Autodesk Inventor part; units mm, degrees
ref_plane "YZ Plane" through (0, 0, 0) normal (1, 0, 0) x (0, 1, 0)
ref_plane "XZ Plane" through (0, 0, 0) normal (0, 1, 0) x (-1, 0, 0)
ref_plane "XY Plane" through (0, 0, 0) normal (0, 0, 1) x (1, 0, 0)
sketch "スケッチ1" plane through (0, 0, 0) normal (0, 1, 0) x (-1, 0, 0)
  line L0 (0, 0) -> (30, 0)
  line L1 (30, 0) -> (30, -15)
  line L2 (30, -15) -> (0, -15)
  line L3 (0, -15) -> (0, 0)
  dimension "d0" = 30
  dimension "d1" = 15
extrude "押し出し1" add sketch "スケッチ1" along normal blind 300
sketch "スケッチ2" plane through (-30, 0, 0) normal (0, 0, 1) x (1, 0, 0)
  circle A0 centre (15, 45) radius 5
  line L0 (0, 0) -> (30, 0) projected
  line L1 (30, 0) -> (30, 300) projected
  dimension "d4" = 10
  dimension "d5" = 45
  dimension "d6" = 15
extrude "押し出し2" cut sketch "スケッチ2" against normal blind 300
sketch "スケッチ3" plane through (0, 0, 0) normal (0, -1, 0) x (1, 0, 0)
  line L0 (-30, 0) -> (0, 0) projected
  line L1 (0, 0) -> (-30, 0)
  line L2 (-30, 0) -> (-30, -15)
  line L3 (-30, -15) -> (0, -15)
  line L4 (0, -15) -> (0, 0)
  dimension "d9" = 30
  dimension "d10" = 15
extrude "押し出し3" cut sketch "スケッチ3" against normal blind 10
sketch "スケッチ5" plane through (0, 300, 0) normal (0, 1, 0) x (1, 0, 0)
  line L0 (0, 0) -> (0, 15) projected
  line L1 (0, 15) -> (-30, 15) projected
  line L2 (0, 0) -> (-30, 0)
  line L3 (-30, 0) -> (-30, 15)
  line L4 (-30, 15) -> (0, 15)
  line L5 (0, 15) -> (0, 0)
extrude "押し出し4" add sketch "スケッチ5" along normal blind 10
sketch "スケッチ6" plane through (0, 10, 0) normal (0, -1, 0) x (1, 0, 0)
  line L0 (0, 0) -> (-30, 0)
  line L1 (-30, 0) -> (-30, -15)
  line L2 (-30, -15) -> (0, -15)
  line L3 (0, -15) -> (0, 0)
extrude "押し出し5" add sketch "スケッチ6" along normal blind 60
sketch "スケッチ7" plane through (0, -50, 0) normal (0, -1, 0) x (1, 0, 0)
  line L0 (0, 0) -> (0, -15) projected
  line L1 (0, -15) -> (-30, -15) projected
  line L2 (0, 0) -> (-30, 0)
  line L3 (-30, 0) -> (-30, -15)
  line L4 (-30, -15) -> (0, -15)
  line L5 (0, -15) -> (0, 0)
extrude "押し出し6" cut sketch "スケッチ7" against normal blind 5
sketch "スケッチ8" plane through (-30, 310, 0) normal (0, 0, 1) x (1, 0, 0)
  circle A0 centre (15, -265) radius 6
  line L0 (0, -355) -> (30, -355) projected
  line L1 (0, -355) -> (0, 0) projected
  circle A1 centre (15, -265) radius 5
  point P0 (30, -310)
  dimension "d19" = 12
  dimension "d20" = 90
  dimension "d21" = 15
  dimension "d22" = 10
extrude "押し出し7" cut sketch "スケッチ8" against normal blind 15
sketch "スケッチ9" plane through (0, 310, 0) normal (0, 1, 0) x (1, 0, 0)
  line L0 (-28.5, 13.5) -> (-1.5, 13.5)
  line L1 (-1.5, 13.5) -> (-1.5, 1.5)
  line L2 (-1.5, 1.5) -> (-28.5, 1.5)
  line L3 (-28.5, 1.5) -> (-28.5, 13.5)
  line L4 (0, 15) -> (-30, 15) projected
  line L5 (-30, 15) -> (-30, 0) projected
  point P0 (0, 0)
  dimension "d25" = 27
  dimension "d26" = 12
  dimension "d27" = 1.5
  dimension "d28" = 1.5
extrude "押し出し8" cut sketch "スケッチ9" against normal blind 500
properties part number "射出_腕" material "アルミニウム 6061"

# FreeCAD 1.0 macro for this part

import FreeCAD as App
import Part
import Sketcher


def add_polygon(sketch, points):
    """Adds a closed chain of lines whose ends are joined by coincident constraints."""
    first, n = sketch.GeometryCount, len(points)
    for a, b in zip(points, points[1:] + points[:1]):
        sketch.addGeometry(Part.LineSegment(App.Vector(*a, 0), App.Vector(*b, 0)), False)
    for i in range(n):
        sketch.addConstraint(Sketcher.Constraint("Coincident", first + i, 2, first + (i + 1) % n, 1))

doc = App.newDocument("Part")
body = doc.addObject("PartDesign::Body", "Body")

# Sketch on XZ plane
sketch1 = doc.addObject("Sketcher::SketchObject", "Sketch")
body.addObject(sketch1)
sketch1.AttachmentSupport = (doc.XZ_Plane, [""])
sketch1.MapMode = "FlatFace"
add_polygon(sketch1, [(-30, 0), (0, 0), (0, -15), (-30, -15)])  # lines 0-3
sketch1.addConstraint([
    Sketcher.Constraint("Horizontal", 0),
    Sketcher.Constraint("Vertical", 1),
    Sketcher.Constraint("Horizontal", 2),
    Sketcher.Constraint("Vertical", 3),
    Sketcher.Constraint("Coincident", 0, 2, -1, 1),
    Sketcher.Constraint("DistanceX", 0, 1, 0, 2, 30.0),
    Sketcher.Constraint("DistanceY", 1, 2, 1, 1, 15.0),
])
pad1 = doc.addObject("PartDesign::Pad", "Pad")
body.addObject(pad1)
pad1.Profile = sketch1
pad1.Length = 300
pad1.Reversed = True

# Sketch on XY plane
sketch2 = doc.addObject("Sketcher::SketchObject", "Sketch001")
body.addObject(sketch2)
sketch2.AttachmentSupport = (doc.XY_Plane, [""])
sketch2.MapMode = "FlatFace"
sketch2.addGeometry(Part.Circle(App.Vector(-15, 45, 0), App.Vector(0, 0, 1), 5), False)
sketch2.addConstraint([
    Sketcher.Constraint("Diameter", 0, 10.0),
    Sketcher.Constraint("DistanceX", 0, 3, -1, 1, 15.0),
    Sketcher.Constraint("DistanceY", -1, 1, 0, 3, 45.0),
])
pocket1 = doc.addObject("PartDesign::Pocket", "Pocket")
body.addObject(pocket1)
pocket1.Profile = sketch2
pocket1.Length = 300

# Sketch on XZ plane
sketch3 = doc.addObject("Sketcher::SketchObject", "Sketch002")
body.addObject(sketch3)
sketch3.AttachmentSupport = (doc.XZ_Plane, [""])
sketch3.MapMode = "FlatFace"
add_polygon(sketch3, [(0, 0), (-30, 0), (-30, -15), (0, -15)])  # lines 0-3
sketch3.addConstraint([
    Sketcher.Constraint("Horizontal", 0),
    Sketcher.Constraint("Vertical", 1),
    Sketcher.Constraint("Horizontal", 2),
    Sketcher.Constraint("Vertical", 3),
    Sketcher.Constraint("Coincident", 3, 2, -1, 1),
    Sketcher.Constraint("DistanceX", 0, 2, 0, 1, 30.0),
    Sketcher.Constraint("DistanceY", 1, 2, 1, 1, 15.0),
])
pocket2 = doc.addObject("PartDesign::Pocket", "Pocket001")
body.addObject(pocket2)
pocket2.Profile = sketch3
pocket2.Length = 10

# Sketch on XZ plane
sketch4 = doc.addObject("Sketcher::SketchObject", "Sketch003")
body.addObject(sketch4)
sketch4.AttachmentSupport = (doc.XZ_Plane, [""])
sketch4.MapMode = "FlatFace"
sketch4.AttachmentOffset = App.Placement(App.Vector(0, 0, -300), App.Rotation())
add_polygon(sketch4, [(-30, 0), (0, 0), (0, -15), (-30, -15)])  # lines 0-3
sketch4.addConstraint([
    Sketcher.Constraint("Horizontal", 0),
    Sketcher.Constraint("Vertical", 1),
    Sketcher.Constraint("Horizontal", 2),
    Sketcher.Constraint("Vertical", 3),
    Sketcher.Constraint("Coincident", 0, 2, -1, 1),
    Sketcher.Constraint("DistanceX", 0, 1, 0, 2, 30.0),
    Sketcher.Constraint("DistanceY", 1, 2, 1, 1, 15.0),
])
pad2 = doc.addObject("PartDesign::Pad", "Pad001")
body.addObject(pad2)
pad2.Profile = sketch4
pad2.Length = 10
pad2.Reversed = True

# Sketch on XZ plane
sketch5 = doc.addObject("Sketcher::SketchObject", "Sketch004")
body.addObject(sketch5)
sketch5.AttachmentSupport = (doc.XZ_Plane, [""])
sketch5.MapMode = "FlatFace"
sketch5.AttachmentOffset = App.Placement(App.Vector(0, 0, -10), App.Rotation())
add_polygon(sketch5, [(0, -15), (0, 0), (-30, 0), (-30, -15)])  # lines 0-3
sketch5.addConstraint([
    Sketcher.Constraint("Vertical", 0),
    Sketcher.Constraint("Horizontal", 1),
    Sketcher.Constraint("Vertical", 2),
    Sketcher.Constraint("Horizontal", 3),
    Sketcher.Constraint("Coincident", 0, 2, -1, 1),
    Sketcher.Constraint("DistanceX", 1, 2, 1, 1, 30.0),
    Sketcher.Constraint("DistanceY", 0, 1, 0, 2, 15.0),
])
pad3 = doc.addObject("PartDesign::Pad", "Pad002")
body.addObject(pad3)
pad3.Profile = sketch5
pad3.Length = 60

# Sketch on XZ plane
sketch6 = doc.addObject("Sketcher::SketchObject", "Sketch005")
body.addObject(sketch6)
sketch6.AttachmentSupport = (doc.XZ_Plane, [""])
sketch6.MapMode = "FlatFace"
sketch6.AttachmentOffset = App.Placement(App.Vector(0, 0, 50), App.Rotation())
add_polygon(sketch6, [(0, -15), (0, 0), (-30, 0), (-30, -15)])  # lines 0-3
sketch6.addConstraint([
    Sketcher.Constraint("Vertical", 0),
    Sketcher.Constraint("Horizontal", 1),
    Sketcher.Constraint("Vertical", 2),
    Sketcher.Constraint("Horizontal", 3),
    Sketcher.Constraint("Coincident", 0, 2, -1, 1),
    Sketcher.Constraint("DistanceX", 1, 2, 1, 1, 30.0),
    Sketcher.Constraint("DistanceY", 0, 1, 0, 2, 15.0),
])
pocket3 = doc.addObject("PartDesign::Pocket", "Pocket002")
body.addObject(pocket3)
pocket3.Profile = sketch6
pocket3.Length = 5

# Sketch on XY plane
sketch7 = doc.addObject("Sketcher::SketchObject", "Sketch006")
body.addObject(sketch7)
sketch7.AttachmentSupport = (doc.XY_Plane, [""])
sketch7.MapMode = "FlatFace"
sketch7.addGeometry([
    Part.Circle(App.Vector(-15, 45, 0), App.Vector(0, 0, 1), 6),
    Part.Circle(App.Vector(-15, 45, 0), App.Vector(0, 0, 1), 5),
], False)
sketch7.addConstraint([
    Sketcher.Constraint("Coincident", 1, 3, 0, 3),
    Sketcher.Constraint("Diameter", 0, 12.0),
    Sketcher.Constraint("Diameter", 1, 10.0),
    Sketcher.Constraint("DistanceX", 0, 3, -1, 1, 15.0),
    Sketcher.Constraint("DistanceY", -1, 1, 0, 3, 45.0),
])
pocket4 = doc.addObject("PartDesign::Pocket", "Pocket003")
body.addObject(pocket4)
pocket4.Profile = sketch7
pocket4.Length = 15

# Sketch on XZ plane
sketch8 = doc.addObject("Sketcher::SketchObject", "Sketch007")
body.addObject(sketch8)
sketch8.AttachmentSupport = (doc.XZ_Plane, [""])
sketch8.MapMode = "FlatFace"
sketch8.AttachmentOffset = App.Placement(App.Vector(0, 0, -310), App.Rotation())
add_polygon(sketch8, [(-2, -14), (-28, -14), (-28, -2), (-2, -2)])  # lines 0-3
sketch8.addConstraint([
    Sketcher.Constraint("Horizontal", 0),
    Sketcher.Constraint("Vertical", 1),
    Sketcher.Constraint("Horizontal", 2),
    Sketcher.Constraint("Vertical", 3),
    Sketcher.Constraint("DistanceX", 0, 2, 0, 1, 27.0),
    Sketcher.Constraint("DistanceY", 1, 1, 1, 2, 12.0),
    Sketcher.Constraint("DistanceY", 1, 2, -1, 1, 1.5),
    Sketcher.Constraint("DistanceX", 2, 2, -1, 1, 1.5),
])
pocket5 = doc.addObject("PartDesign::Pocket", "Pocket004")
body.addObject(pocket5)
pocket5.Profile = sketch8
pocket5.Length = 500
pocket5.Reversed = True

doc.recompute()
